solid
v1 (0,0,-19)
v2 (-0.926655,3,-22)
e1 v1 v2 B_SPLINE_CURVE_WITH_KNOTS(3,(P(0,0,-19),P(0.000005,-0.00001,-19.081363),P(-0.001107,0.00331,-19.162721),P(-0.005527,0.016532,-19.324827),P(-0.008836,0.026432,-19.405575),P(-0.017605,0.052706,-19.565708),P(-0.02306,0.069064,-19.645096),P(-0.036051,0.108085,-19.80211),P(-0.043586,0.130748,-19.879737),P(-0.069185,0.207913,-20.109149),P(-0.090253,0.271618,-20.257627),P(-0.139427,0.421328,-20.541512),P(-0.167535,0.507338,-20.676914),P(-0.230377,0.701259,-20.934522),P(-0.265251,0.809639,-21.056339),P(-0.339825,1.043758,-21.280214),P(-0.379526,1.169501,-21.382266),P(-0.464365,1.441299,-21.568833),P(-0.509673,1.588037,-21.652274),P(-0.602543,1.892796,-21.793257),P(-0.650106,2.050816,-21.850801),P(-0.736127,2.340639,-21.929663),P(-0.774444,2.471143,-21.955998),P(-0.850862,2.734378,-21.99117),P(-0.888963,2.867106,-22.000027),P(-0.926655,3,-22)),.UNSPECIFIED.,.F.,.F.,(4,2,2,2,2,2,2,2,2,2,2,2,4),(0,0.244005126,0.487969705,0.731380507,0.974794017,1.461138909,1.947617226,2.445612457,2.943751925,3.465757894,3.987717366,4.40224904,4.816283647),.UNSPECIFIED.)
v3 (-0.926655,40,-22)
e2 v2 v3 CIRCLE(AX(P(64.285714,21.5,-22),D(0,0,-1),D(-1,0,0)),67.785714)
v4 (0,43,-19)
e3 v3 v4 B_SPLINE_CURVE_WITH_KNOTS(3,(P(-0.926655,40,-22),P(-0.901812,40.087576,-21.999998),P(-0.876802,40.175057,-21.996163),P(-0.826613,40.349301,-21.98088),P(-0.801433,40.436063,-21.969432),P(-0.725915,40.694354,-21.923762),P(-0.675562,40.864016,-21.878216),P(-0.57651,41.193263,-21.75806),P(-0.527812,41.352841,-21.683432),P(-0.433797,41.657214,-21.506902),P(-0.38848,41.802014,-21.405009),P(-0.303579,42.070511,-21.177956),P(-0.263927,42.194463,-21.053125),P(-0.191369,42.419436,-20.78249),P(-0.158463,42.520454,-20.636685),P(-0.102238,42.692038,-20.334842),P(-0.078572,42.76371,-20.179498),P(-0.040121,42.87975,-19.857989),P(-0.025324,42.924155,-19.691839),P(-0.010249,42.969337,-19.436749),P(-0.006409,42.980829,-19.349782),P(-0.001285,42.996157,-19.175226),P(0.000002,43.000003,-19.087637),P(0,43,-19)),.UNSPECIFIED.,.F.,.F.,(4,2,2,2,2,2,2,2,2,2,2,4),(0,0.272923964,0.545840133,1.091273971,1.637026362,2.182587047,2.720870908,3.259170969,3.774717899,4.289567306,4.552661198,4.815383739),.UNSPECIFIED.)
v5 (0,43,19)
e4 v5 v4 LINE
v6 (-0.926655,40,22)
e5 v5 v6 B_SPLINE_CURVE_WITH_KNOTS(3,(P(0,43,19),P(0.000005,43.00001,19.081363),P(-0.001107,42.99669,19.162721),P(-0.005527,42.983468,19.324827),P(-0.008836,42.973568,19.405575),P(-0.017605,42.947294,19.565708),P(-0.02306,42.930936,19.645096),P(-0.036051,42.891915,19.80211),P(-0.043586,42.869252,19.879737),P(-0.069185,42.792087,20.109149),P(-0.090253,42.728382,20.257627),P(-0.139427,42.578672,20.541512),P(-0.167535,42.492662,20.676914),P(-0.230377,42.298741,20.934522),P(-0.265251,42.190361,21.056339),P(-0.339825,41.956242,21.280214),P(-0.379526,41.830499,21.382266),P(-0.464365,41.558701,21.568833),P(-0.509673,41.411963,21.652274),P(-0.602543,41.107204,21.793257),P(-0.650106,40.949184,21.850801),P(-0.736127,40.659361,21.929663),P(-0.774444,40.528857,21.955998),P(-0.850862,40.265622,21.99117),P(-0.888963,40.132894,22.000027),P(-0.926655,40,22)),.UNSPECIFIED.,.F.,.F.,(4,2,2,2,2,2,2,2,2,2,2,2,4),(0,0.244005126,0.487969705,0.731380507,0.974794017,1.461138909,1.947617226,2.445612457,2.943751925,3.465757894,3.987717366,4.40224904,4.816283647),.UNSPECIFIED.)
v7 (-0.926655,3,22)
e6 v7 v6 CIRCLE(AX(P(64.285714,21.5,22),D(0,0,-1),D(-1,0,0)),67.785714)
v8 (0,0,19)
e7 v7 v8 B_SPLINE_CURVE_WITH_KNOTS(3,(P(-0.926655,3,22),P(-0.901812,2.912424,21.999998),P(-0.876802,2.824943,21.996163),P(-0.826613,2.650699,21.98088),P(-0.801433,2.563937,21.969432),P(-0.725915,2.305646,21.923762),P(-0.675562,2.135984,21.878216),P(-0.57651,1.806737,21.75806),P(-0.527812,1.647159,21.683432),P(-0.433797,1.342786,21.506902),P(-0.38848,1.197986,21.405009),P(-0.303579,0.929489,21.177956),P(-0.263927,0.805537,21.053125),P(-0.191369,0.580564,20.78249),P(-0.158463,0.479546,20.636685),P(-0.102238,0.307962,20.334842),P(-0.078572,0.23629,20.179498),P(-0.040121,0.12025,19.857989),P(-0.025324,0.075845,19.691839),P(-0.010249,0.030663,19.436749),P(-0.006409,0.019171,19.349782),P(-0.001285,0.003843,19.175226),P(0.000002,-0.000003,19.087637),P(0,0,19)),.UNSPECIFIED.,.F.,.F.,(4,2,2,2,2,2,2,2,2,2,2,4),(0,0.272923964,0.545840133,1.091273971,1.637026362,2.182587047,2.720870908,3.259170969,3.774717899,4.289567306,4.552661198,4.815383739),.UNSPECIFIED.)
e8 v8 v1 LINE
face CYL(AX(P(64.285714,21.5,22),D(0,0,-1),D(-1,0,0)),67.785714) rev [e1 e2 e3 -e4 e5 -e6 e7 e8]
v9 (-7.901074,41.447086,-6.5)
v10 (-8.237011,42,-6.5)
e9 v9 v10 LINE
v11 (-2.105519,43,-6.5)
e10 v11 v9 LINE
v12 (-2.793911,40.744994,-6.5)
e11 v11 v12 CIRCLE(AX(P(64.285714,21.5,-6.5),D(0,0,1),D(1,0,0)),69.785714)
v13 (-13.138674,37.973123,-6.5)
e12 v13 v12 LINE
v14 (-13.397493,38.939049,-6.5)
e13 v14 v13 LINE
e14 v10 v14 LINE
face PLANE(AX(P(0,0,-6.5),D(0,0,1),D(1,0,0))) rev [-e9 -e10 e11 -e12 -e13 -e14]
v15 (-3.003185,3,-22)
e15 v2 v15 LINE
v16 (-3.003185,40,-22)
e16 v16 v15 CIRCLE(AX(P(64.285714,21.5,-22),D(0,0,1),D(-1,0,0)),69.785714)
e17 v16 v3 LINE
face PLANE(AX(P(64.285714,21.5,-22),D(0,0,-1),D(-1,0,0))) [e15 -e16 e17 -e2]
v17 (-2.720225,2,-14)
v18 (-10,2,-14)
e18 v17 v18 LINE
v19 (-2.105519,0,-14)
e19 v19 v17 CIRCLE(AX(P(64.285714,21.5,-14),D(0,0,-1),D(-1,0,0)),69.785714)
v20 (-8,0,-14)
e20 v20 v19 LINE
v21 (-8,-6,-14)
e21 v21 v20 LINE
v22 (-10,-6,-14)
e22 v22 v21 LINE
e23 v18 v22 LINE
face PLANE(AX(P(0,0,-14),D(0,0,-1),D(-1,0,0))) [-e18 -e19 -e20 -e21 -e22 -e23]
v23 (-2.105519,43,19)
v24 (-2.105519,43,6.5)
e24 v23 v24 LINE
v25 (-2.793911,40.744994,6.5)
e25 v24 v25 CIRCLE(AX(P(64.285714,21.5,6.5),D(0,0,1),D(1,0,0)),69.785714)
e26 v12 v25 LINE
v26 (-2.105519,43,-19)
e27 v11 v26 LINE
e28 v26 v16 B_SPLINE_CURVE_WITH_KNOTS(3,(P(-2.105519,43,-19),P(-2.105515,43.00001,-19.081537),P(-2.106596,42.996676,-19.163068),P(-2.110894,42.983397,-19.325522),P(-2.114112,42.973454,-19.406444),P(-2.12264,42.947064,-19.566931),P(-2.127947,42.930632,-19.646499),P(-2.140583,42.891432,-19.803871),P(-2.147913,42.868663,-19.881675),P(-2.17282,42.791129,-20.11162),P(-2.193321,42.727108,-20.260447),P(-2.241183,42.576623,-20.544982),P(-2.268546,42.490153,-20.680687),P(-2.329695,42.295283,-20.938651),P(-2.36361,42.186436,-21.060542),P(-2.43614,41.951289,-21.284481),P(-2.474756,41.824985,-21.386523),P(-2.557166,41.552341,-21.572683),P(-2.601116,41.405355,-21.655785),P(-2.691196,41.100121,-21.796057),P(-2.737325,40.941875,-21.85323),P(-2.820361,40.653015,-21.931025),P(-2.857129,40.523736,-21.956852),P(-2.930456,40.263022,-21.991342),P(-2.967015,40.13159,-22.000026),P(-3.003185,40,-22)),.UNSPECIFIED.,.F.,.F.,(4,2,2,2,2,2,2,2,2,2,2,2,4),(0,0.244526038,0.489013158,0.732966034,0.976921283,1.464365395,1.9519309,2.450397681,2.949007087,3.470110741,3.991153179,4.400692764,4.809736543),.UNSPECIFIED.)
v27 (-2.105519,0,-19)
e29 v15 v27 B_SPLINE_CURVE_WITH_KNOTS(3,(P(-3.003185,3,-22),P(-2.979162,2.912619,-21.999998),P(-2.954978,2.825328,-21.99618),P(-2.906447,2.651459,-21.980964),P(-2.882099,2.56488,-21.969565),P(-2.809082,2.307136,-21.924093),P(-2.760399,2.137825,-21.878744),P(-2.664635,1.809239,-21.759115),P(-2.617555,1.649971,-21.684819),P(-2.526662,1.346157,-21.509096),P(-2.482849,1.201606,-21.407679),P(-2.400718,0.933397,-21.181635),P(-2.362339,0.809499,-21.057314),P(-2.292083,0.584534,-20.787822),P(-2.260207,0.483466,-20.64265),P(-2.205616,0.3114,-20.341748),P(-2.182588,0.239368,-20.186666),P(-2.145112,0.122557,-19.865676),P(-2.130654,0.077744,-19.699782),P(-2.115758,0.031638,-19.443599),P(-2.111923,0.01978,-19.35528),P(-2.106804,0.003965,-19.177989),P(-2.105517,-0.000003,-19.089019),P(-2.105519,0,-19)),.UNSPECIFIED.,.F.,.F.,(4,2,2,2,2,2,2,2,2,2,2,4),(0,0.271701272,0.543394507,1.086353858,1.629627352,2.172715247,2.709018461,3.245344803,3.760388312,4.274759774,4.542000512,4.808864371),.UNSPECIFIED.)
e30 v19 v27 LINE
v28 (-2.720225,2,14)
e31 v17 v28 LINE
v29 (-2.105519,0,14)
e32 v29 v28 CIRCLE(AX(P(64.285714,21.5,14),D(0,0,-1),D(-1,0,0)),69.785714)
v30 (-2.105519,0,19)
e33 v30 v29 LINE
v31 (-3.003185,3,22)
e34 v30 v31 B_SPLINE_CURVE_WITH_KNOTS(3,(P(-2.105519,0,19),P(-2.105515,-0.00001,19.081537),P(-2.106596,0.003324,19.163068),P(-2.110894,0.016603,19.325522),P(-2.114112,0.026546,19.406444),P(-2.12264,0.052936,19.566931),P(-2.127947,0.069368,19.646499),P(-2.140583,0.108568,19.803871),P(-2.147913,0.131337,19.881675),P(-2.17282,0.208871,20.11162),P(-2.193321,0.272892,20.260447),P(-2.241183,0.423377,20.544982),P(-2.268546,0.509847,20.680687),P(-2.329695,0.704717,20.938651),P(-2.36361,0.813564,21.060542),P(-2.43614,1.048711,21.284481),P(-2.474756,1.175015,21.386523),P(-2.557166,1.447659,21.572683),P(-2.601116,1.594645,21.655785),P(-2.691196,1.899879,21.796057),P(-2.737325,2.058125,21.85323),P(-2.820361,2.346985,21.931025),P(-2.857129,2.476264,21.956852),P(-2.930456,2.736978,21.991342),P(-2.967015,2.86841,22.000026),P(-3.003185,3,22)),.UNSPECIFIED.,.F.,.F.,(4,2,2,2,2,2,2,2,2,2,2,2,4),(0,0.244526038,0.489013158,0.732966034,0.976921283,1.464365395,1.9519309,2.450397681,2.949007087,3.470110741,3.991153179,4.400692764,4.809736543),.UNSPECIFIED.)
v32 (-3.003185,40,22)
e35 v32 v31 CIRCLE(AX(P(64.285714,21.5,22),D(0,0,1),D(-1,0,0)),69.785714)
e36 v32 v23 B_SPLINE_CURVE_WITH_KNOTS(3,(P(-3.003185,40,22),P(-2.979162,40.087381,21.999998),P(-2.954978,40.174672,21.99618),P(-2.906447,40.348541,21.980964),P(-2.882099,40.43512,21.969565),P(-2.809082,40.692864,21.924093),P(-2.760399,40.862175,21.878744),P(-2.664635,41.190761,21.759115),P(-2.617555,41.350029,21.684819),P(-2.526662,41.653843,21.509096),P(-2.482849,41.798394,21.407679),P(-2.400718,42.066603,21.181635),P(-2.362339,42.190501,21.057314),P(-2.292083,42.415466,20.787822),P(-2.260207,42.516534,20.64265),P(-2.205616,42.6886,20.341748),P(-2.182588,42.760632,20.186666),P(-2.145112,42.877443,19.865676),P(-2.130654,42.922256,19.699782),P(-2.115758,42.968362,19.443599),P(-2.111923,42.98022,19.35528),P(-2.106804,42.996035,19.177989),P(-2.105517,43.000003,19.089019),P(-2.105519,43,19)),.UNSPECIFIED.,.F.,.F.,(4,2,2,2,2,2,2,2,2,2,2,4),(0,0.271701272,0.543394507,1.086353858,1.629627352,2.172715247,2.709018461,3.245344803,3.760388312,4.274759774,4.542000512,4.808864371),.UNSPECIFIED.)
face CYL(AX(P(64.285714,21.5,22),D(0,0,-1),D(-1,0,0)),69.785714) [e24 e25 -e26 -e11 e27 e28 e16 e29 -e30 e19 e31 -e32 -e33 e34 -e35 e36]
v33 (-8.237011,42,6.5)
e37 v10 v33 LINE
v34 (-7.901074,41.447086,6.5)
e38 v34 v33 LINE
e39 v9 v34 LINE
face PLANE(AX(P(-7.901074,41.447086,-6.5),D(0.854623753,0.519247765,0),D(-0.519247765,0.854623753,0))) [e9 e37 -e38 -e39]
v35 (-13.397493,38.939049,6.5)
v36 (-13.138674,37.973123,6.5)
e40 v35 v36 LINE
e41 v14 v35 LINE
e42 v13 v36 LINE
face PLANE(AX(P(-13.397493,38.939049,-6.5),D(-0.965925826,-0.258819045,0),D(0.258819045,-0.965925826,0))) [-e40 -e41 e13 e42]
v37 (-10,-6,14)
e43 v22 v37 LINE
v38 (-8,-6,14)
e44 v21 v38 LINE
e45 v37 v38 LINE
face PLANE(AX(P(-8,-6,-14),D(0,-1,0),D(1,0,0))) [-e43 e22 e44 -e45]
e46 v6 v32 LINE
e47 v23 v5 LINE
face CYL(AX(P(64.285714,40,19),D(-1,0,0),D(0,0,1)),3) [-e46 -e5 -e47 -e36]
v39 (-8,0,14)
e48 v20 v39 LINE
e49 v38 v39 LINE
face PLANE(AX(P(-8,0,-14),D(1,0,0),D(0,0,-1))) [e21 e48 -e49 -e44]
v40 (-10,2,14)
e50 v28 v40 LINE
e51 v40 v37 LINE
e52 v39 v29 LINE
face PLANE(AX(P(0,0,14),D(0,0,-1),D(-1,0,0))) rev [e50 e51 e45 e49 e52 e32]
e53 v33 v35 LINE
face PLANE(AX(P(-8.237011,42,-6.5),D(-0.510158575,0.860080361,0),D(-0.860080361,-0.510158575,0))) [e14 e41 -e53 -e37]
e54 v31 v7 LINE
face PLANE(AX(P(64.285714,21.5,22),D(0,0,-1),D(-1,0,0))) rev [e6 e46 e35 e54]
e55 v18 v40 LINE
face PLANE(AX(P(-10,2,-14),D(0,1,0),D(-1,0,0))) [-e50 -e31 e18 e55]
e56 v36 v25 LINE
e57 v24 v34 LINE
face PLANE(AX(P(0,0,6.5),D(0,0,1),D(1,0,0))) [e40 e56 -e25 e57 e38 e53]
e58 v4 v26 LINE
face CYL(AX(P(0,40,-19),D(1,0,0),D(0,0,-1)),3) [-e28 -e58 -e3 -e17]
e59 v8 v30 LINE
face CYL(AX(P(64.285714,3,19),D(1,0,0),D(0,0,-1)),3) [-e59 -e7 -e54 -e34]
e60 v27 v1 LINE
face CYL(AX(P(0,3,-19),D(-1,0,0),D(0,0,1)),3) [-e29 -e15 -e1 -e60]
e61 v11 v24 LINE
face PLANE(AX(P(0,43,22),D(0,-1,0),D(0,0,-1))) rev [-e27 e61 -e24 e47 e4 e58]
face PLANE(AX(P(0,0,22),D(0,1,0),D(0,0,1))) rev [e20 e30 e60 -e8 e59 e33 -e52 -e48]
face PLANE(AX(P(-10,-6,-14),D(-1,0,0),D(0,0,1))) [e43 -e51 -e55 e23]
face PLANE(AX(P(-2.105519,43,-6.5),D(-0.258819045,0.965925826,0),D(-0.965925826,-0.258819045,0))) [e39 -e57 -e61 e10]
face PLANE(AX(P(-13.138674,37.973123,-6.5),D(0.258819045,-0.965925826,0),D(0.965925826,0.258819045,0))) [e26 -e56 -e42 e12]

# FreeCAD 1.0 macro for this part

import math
import FreeCAD as App
import Part
import Sketcher
Q = App.Units.Quantity


def edges_at(feature, points):
    """Names of the edges that pass closest to the given points."""
    edges = feature.Shape.Edges
    near = lambda p: min(range(len(edges)), key=lambda i: edges[i].distToShape(Part.Vertex(*p))[0])
    return sorted({f"Edge{near(p) + 1}" for p in points})

doc = App.newDocument("Part")
body = doc.addObject("PartDesign::Body", "Body")

sketch1 = body.newObject("Sketcher::SketchObject", "Sketch")
sketch1.AttachmentSupport = (doc.getObject("XY_Plane"), [""])
sketch1.MapMode = "FlatFace"
sketch1.addGeometry([
    Part.LineSegment(App.Vector(0, 43, 0), App.Vector(-2.1, 43, 0)),
    Part.ArcOfCircle(Part.Circle(App.Vector(64.3, 21.5, 0), App.Vector(0, 0, 1), 69.8), math.radians(162), math.radians(198)),
    Part.LineSegment(App.Vector(-2.1, 0, 0), App.Vector(0, 0, 0)),
    Part.ArcOfCircle(Part.Circle(App.Vector(64.3, 21.5, 0), App.Vector(0, 0, 1), 67.8), math.radians(162), math.radians(198)),
], False)
sketch1.addConstraint([
    Sketcher.Constraint("Coincident", 0, 2, 1, 1),
    Sketcher.Constraint("Coincident", 1, 2, 2, 1),
    Sketcher.Constraint("Coincident", 2, 2, 3, 2),
    Sketcher.Constraint("Coincident", 3, 1, 0, 1),
    Sketcher.Constraint("Horizontal", 0),
    Sketcher.Constraint("Horizontal", 2),
    Sketcher.Constraint("Coincident", 2, 2, -1, 1),
    Sketcher.Constraint("Coincident", 3, 3, 1, 3),
    Sketcher.Constraint("PointOnObject", 3, 1, -2),
    Sketcher.Constraint("DistanceY", -1, 1, 0, 2, Q("43 mm")),
    Sketcher.Constraint("Radius", 1, Q("69.785714 mm")),
    Sketcher.Constraint("Radius", 3, Q("67.785714 mm")),
])
pad1 = body.newObject("PartDesign::Pad", "Pad")
pad1.Profile = sketch1
pad1.Type = "TwoLengths"
pad1.Length = 22
pad1.Length2 = 22
doc.recompute()

fillet = body.newObject("PartDesign::Fillet", "Fillet")
fillet.Base = (pad1, edges_at(pad1, [
    (-1.053, 0, -22),
    (-1.053, 43, -22),
    (-1.053, 0, 22),
    (-1.053, 43, 22),
]))
fillet.Radius = 3

sketch2 = body.newObject("Sketcher::SketchObject", "Sketch001")
sketch2.AttachmentSupport = (doc.getObject("XY_Plane"), [""])
sketch2.MapMode = "FlatFace"
sketch2.addGeometry([
    Part.LineSegment(App.Vector(-2.1, 43, 0), App.Vector(-7.9, 41.4, 0)),
    Part.LineSegment(App.Vector(-7.9, 41.4, 0), App.Vector(-8.2, 42, 0)),
    Part.LineSegment(App.Vector(-8.2, 42, 0), App.Vector(-13.4, 38.9, 0)),
    Part.LineSegment(App.Vector(-13.4, 38.9, 0), App.Vector(-13.1, 38, 0)),
    Part.LineSegment(App.Vector(-13.1, 38, 0), App.Vector(-2.8, 40.7, 0)),
    Part.LineSegment(App.Vector(-2.8, 40.7, 0), App.Vector(-2.1, 43, 0)),
], False)
sketch2.addConstraint([
    Sketcher.Constraint("Coincident", 0, 2, 1, 1),
    Sketcher.Constraint("Coincident", 1, 2, 2, 1),
    Sketcher.Constraint("Coincident", 2, 2, 3, 1),
    Sketcher.Constraint("Coincident", 3, 2, 4, 1),
    Sketcher.Constraint("Coincident", 4, 2, 5, 1),
    Sketcher.Constraint("Coincident", 5, 2, 0, 1),
    Sketcher.Constraint("Perpendicular", 0, 3),
    Sketcher.Constraint("Perpendicular", 3, 4),
    Sketcher.Constraint("Equal", 0, 2),
    Sketcher.Constraint("Angle", 0, Q("-165 deg")),
    Sketcher.Constraint("Distance", 0, Q("6 mm")),
    Sketcher.Constraint("Distance", 3, Q("1 mm")),
    Sketcher.Constraint("DistanceY", -1, 1, 1, 2, Q("42 mm")),
    Sketcher.Constraint("DistanceY", -1, 1, 5, 2, Q("43 mm")),
    Sketcher.Constraint("DistanceX", 3, 2, 0, 2, Q("5.2376 mm")),
    Sketcher.Constraint("DistanceX", 1, 2, 4, 2, Q("5.4431 mm")),
    Sketcher.Constraint("Distance", 1, Q("0.646968 mm")),
    Sketcher.Constraint("DistanceX", 1, 2, -1, 1, Q("8.237011 mm")),
])
pad2 = body.newObject("PartDesign::Pad", "Pad001")
pad2.Profile = sketch2
pad2.Type = "TwoLengths"
pad2.Length = 6.5
pad2.Length2 = 6.5

sketch3 = body.newObject("Sketcher::SketchObject", "Sketch002")
sketch3.AttachmentSupport = (doc.getObject("XY_Plane"), [""])
sketch3.MapMode = "FlatFace"
sketch3.addGeometry([
    Part.LineSegment(App.Vector(-8, 0, 0), App.Vector(-2.1, 0, 0)),
    Part.LineSegment(App.Vector(-2.1, 0, 0), App.Vector(-2.7, 2, 0)),
    Part.LineSegment(App.Vector(-2.7, 2, 0), App.Vector(-10, 2, 0)),
    Part.LineSegment(App.Vector(-10, 2, 0), App.Vector(-10, -6, 0)),
    Part.LineSegment(App.Vector(-10, -6, 0), App.Vector(-8, -6, 0)),
    Part.LineSegment(App.Vector(-8, -6, 0), App.Vector(-8, 0, 0)),
], False)
sketch3.addConstraint([
    Sketcher.Constraint("Coincident", 0, 2, 1, 1),
    Sketcher.Constraint("Coincident", 1, 2, 2, 1),
    Sketcher.Constraint("Coincident", 2, 2, 3, 1),
    Sketcher.Constraint("Coincident", 3, 2, 4, 1),
    Sketcher.Constraint("Coincident", 4, 2, 5, 1),
    Sketcher.Constraint("Coincident", 5, 2, 0, 1),
    Sketcher.Constraint("Horizontal", 0),
    Sketcher.Constraint("Horizontal", 2),
    Sketcher.Constraint("Vertical", 3),
    Sketcher.Constraint("Horizontal", 4),
    Sketcher.Constraint("Vertical", 5),
    Sketcher.Constraint("PointOnObject", 0, 2, -1),
    Sketcher.Constraint("DistanceX", 4, 1, 4, 2, Q("2 mm")),
    Sketcher.Constraint("DistanceY", 3, 2, 3, 1, Q("8 mm")),
    Sketcher.Constraint("DistanceY", 5, 1, 5, 2, Q("6 mm")),
    Sketcher.Constraint("DistanceX", 2, 2, -1, 1, Q("10 mm")),
    Sketcher.Constraint("DistanceX", 0, 1, 0, 2, Q("5.894481 mm")),
    Sketcher.Constraint("DistanceX", 2, 2, 2, 1, Q("7.279775 mm")),
])
pad3 = body.newObject("PartDesign::Pad", "Pad002")
pad3.Profile = sketch3
pad3.Type = "TwoLengths"
pad3.Length = 14
pad3.Length2 = 14

doc.recompute()
